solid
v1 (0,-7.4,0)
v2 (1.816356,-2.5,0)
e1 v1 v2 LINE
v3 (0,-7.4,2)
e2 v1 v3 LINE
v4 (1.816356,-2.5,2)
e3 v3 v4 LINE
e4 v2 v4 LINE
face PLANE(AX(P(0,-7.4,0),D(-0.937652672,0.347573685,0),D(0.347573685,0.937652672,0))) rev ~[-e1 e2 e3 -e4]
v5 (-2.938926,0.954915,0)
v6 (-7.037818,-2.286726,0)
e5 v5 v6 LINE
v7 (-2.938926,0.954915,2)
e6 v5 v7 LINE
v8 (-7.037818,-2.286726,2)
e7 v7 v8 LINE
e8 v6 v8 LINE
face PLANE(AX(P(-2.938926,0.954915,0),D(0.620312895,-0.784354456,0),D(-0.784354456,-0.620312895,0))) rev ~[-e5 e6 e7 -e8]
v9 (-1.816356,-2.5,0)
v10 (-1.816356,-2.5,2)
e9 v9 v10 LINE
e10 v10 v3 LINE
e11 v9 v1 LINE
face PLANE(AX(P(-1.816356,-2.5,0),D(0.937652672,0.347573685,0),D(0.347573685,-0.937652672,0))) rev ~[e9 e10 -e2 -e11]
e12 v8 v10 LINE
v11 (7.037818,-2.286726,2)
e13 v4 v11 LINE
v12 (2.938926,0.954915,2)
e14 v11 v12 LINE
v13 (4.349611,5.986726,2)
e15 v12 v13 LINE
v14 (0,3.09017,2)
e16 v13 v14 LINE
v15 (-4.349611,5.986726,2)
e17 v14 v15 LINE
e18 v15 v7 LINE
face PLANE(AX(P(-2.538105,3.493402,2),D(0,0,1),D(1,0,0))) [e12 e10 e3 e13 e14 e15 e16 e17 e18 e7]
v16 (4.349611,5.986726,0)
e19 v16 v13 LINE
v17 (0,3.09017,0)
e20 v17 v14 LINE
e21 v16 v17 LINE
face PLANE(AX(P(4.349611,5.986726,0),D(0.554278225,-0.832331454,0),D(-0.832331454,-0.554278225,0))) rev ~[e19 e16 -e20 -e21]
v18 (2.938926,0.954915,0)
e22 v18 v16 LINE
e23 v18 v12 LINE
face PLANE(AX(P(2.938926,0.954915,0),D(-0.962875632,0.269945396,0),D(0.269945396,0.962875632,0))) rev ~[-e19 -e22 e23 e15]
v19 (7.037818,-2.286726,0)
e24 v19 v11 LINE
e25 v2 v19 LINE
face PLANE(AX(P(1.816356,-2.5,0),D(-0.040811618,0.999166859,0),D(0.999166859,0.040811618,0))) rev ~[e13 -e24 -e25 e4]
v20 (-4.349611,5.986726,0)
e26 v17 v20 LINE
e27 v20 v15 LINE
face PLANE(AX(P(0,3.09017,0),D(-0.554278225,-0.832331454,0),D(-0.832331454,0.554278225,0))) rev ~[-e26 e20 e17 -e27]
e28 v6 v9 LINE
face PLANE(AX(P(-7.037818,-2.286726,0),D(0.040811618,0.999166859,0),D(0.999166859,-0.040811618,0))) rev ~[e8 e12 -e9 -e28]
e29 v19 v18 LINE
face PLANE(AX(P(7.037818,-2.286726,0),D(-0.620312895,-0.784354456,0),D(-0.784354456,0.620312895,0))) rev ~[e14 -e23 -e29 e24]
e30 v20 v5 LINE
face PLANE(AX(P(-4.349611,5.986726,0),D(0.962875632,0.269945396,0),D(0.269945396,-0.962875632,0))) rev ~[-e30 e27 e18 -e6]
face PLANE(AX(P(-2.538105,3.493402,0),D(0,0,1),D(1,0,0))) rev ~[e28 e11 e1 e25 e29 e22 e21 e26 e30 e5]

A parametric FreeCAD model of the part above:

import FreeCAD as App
import Part
import Sketcher

V = App.Vector

doc = App.newDocument("Part")
body = doc.addObject("PartDesign::Body", "Body")

# Sketch on XY plane
sketch1 = doc.addObject("Sketcher::SketchObject", "Sketch")
body.addObject(sketch1)
sketch1.AttachmentSupport = (doc.XY_Plane, [""])
sketch1.MapMode = "FlatFace"
sketch1.addGeometry(Part.LineSegment(V(0, 3.09017, 0), V(-4.349611, 5.986726, 0)), False)
sketch1.addGeometry(Part.LineSegment(V(-4.349611, 5.986726, 0), V(-2.938926, 0.954915, 0)), False)
sketch1.addGeometry(Part.LineSegment(V(-2.938926, 0.954915, 0), V(-7.037818, -2.286726, 0)), False)
sketch1.addGeometry(Part.LineSegment(V(-7.037818, -2.286726, 0), V(-1.816356, -2.5, 0)), False)
sketch1.addGeometry(Part.LineSegment(V(-1.816356, -2.5, 0), V(0, -7.4, 0)), False)
sketch1.addGeometry(Part.LineSegment(V(0, -7.4, 0), V(1.816356, -2.5, 0)), False)
sketch1.addGeometry(Part.LineSegment(V(1.816356, -2.5, 0), V(7.037818, -2.286726, 0)), False)
sketch1.addGeometry(Part.LineSegment(V(7.037818, -2.286726, 0), V(2.938926, 0.954915, 0)), False)
sketch1.addGeometry(Part.LineSegment(V(2.938926, 0.954915, 0), V(4.349611, 5.986726, 0)), False)
sketch1.addGeometry(Part.LineSegment(V(4.349611, 5.986726, 0), V(0, 3.09017, 0)), False)
sketch1.addConstraint(Sketcher.Constraint("Coincident", 0, 2, 1, 1))
sketch1.addConstraint(Sketcher.Constraint("Coincident", 1, 2, 2, 1))
sketch1.addConstraint(Sketcher.Constraint("Coincident", 2, 2, 3, 1))
sketch1.addConstraint(Sketcher.Constraint("Coincident", 3, 2, 4, 1))
sketch1.addConstraint(Sketcher.Constraint("Coincident", 4, 2, 5, 1))
sketch1.addConstraint(Sketcher.Constraint("Coincident", 5, 2, 6, 1))
sketch1.addConstraint(Sketcher.Constraint("Coincident", 6, 2, 7, 1))
sketch1.addConstraint(Sketcher.Constraint("Coincident", 7, 2, 8, 1))
sketch1.addConstraint(Sketcher.Constraint("Coincident", 8, 2, 9, 1))
sketch1.addConstraint(Sketcher.Constraint("Coincident", 9, 2, 0, 1))
sketch1.addConstraint(Sketcher.Constraint("Symmetric", 3, 2, 5, 2, -2))
sketch1.addConstraint(Sketcher.Constraint("Symmetric", 2, 2, 6, 2, -2))
sketch1.addConstraint(Sketcher.Constraint("Symmetric", 1, 2, 7, 2, -2))
sketch1.addConstraint(Sketcher.Constraint("Symmetric", 0, 2, 8, 2, -2))
sketch1.addConstraint(Sketcher.Constraint("PointOnObject", 4, 2, -2))
sketch1.addConstraint(Sketcher.Constraint("PointOnObject", 9, 2, -2))
sketch1.addConstraint(Sketcher.Constraint("Equal", 0, 1))
sketch1.addConstraint(Sketcher.Constraint("Equal", 1, 2))
sketch1.addConstraint(Sketcher.Constraint("Equal", 2, 3))
sketch1.addConstraint(Sketcher.Constraint("Equal", 3, 4))
sketch1.addConstraint(Sketcher.Constraint("DistanceY", 3, 2, -1, 1, 2.5))
sketch1.addConstraint(Sketcher.Constraint("DistanceY", 4, 2, -1, 1, 7.4))
sketch1.addConstraint(Sketcher.Constraint("DistanceX", 0, 2, -1, 1, 4.349611))
sketch1.addConstraint(Sketcher.Constraint("DistanceY", -1, 1, 9, 2, 3.09017))
sketch1.addConstraint(Sketcher.Constraint("DistanceY", 1, 2, 0, 2, 5.031811))
sketch1.addConstraint(Sketcher.Constraint("DistanceX", 2, 2, 1, 2, 4.098892))
pad1 = doc.addObject("PartDesign::Pad", "Pad")
body.addObject(pad1)
pad1.Profile = sketch1
pad1.Length = 2

doc.recompute()
